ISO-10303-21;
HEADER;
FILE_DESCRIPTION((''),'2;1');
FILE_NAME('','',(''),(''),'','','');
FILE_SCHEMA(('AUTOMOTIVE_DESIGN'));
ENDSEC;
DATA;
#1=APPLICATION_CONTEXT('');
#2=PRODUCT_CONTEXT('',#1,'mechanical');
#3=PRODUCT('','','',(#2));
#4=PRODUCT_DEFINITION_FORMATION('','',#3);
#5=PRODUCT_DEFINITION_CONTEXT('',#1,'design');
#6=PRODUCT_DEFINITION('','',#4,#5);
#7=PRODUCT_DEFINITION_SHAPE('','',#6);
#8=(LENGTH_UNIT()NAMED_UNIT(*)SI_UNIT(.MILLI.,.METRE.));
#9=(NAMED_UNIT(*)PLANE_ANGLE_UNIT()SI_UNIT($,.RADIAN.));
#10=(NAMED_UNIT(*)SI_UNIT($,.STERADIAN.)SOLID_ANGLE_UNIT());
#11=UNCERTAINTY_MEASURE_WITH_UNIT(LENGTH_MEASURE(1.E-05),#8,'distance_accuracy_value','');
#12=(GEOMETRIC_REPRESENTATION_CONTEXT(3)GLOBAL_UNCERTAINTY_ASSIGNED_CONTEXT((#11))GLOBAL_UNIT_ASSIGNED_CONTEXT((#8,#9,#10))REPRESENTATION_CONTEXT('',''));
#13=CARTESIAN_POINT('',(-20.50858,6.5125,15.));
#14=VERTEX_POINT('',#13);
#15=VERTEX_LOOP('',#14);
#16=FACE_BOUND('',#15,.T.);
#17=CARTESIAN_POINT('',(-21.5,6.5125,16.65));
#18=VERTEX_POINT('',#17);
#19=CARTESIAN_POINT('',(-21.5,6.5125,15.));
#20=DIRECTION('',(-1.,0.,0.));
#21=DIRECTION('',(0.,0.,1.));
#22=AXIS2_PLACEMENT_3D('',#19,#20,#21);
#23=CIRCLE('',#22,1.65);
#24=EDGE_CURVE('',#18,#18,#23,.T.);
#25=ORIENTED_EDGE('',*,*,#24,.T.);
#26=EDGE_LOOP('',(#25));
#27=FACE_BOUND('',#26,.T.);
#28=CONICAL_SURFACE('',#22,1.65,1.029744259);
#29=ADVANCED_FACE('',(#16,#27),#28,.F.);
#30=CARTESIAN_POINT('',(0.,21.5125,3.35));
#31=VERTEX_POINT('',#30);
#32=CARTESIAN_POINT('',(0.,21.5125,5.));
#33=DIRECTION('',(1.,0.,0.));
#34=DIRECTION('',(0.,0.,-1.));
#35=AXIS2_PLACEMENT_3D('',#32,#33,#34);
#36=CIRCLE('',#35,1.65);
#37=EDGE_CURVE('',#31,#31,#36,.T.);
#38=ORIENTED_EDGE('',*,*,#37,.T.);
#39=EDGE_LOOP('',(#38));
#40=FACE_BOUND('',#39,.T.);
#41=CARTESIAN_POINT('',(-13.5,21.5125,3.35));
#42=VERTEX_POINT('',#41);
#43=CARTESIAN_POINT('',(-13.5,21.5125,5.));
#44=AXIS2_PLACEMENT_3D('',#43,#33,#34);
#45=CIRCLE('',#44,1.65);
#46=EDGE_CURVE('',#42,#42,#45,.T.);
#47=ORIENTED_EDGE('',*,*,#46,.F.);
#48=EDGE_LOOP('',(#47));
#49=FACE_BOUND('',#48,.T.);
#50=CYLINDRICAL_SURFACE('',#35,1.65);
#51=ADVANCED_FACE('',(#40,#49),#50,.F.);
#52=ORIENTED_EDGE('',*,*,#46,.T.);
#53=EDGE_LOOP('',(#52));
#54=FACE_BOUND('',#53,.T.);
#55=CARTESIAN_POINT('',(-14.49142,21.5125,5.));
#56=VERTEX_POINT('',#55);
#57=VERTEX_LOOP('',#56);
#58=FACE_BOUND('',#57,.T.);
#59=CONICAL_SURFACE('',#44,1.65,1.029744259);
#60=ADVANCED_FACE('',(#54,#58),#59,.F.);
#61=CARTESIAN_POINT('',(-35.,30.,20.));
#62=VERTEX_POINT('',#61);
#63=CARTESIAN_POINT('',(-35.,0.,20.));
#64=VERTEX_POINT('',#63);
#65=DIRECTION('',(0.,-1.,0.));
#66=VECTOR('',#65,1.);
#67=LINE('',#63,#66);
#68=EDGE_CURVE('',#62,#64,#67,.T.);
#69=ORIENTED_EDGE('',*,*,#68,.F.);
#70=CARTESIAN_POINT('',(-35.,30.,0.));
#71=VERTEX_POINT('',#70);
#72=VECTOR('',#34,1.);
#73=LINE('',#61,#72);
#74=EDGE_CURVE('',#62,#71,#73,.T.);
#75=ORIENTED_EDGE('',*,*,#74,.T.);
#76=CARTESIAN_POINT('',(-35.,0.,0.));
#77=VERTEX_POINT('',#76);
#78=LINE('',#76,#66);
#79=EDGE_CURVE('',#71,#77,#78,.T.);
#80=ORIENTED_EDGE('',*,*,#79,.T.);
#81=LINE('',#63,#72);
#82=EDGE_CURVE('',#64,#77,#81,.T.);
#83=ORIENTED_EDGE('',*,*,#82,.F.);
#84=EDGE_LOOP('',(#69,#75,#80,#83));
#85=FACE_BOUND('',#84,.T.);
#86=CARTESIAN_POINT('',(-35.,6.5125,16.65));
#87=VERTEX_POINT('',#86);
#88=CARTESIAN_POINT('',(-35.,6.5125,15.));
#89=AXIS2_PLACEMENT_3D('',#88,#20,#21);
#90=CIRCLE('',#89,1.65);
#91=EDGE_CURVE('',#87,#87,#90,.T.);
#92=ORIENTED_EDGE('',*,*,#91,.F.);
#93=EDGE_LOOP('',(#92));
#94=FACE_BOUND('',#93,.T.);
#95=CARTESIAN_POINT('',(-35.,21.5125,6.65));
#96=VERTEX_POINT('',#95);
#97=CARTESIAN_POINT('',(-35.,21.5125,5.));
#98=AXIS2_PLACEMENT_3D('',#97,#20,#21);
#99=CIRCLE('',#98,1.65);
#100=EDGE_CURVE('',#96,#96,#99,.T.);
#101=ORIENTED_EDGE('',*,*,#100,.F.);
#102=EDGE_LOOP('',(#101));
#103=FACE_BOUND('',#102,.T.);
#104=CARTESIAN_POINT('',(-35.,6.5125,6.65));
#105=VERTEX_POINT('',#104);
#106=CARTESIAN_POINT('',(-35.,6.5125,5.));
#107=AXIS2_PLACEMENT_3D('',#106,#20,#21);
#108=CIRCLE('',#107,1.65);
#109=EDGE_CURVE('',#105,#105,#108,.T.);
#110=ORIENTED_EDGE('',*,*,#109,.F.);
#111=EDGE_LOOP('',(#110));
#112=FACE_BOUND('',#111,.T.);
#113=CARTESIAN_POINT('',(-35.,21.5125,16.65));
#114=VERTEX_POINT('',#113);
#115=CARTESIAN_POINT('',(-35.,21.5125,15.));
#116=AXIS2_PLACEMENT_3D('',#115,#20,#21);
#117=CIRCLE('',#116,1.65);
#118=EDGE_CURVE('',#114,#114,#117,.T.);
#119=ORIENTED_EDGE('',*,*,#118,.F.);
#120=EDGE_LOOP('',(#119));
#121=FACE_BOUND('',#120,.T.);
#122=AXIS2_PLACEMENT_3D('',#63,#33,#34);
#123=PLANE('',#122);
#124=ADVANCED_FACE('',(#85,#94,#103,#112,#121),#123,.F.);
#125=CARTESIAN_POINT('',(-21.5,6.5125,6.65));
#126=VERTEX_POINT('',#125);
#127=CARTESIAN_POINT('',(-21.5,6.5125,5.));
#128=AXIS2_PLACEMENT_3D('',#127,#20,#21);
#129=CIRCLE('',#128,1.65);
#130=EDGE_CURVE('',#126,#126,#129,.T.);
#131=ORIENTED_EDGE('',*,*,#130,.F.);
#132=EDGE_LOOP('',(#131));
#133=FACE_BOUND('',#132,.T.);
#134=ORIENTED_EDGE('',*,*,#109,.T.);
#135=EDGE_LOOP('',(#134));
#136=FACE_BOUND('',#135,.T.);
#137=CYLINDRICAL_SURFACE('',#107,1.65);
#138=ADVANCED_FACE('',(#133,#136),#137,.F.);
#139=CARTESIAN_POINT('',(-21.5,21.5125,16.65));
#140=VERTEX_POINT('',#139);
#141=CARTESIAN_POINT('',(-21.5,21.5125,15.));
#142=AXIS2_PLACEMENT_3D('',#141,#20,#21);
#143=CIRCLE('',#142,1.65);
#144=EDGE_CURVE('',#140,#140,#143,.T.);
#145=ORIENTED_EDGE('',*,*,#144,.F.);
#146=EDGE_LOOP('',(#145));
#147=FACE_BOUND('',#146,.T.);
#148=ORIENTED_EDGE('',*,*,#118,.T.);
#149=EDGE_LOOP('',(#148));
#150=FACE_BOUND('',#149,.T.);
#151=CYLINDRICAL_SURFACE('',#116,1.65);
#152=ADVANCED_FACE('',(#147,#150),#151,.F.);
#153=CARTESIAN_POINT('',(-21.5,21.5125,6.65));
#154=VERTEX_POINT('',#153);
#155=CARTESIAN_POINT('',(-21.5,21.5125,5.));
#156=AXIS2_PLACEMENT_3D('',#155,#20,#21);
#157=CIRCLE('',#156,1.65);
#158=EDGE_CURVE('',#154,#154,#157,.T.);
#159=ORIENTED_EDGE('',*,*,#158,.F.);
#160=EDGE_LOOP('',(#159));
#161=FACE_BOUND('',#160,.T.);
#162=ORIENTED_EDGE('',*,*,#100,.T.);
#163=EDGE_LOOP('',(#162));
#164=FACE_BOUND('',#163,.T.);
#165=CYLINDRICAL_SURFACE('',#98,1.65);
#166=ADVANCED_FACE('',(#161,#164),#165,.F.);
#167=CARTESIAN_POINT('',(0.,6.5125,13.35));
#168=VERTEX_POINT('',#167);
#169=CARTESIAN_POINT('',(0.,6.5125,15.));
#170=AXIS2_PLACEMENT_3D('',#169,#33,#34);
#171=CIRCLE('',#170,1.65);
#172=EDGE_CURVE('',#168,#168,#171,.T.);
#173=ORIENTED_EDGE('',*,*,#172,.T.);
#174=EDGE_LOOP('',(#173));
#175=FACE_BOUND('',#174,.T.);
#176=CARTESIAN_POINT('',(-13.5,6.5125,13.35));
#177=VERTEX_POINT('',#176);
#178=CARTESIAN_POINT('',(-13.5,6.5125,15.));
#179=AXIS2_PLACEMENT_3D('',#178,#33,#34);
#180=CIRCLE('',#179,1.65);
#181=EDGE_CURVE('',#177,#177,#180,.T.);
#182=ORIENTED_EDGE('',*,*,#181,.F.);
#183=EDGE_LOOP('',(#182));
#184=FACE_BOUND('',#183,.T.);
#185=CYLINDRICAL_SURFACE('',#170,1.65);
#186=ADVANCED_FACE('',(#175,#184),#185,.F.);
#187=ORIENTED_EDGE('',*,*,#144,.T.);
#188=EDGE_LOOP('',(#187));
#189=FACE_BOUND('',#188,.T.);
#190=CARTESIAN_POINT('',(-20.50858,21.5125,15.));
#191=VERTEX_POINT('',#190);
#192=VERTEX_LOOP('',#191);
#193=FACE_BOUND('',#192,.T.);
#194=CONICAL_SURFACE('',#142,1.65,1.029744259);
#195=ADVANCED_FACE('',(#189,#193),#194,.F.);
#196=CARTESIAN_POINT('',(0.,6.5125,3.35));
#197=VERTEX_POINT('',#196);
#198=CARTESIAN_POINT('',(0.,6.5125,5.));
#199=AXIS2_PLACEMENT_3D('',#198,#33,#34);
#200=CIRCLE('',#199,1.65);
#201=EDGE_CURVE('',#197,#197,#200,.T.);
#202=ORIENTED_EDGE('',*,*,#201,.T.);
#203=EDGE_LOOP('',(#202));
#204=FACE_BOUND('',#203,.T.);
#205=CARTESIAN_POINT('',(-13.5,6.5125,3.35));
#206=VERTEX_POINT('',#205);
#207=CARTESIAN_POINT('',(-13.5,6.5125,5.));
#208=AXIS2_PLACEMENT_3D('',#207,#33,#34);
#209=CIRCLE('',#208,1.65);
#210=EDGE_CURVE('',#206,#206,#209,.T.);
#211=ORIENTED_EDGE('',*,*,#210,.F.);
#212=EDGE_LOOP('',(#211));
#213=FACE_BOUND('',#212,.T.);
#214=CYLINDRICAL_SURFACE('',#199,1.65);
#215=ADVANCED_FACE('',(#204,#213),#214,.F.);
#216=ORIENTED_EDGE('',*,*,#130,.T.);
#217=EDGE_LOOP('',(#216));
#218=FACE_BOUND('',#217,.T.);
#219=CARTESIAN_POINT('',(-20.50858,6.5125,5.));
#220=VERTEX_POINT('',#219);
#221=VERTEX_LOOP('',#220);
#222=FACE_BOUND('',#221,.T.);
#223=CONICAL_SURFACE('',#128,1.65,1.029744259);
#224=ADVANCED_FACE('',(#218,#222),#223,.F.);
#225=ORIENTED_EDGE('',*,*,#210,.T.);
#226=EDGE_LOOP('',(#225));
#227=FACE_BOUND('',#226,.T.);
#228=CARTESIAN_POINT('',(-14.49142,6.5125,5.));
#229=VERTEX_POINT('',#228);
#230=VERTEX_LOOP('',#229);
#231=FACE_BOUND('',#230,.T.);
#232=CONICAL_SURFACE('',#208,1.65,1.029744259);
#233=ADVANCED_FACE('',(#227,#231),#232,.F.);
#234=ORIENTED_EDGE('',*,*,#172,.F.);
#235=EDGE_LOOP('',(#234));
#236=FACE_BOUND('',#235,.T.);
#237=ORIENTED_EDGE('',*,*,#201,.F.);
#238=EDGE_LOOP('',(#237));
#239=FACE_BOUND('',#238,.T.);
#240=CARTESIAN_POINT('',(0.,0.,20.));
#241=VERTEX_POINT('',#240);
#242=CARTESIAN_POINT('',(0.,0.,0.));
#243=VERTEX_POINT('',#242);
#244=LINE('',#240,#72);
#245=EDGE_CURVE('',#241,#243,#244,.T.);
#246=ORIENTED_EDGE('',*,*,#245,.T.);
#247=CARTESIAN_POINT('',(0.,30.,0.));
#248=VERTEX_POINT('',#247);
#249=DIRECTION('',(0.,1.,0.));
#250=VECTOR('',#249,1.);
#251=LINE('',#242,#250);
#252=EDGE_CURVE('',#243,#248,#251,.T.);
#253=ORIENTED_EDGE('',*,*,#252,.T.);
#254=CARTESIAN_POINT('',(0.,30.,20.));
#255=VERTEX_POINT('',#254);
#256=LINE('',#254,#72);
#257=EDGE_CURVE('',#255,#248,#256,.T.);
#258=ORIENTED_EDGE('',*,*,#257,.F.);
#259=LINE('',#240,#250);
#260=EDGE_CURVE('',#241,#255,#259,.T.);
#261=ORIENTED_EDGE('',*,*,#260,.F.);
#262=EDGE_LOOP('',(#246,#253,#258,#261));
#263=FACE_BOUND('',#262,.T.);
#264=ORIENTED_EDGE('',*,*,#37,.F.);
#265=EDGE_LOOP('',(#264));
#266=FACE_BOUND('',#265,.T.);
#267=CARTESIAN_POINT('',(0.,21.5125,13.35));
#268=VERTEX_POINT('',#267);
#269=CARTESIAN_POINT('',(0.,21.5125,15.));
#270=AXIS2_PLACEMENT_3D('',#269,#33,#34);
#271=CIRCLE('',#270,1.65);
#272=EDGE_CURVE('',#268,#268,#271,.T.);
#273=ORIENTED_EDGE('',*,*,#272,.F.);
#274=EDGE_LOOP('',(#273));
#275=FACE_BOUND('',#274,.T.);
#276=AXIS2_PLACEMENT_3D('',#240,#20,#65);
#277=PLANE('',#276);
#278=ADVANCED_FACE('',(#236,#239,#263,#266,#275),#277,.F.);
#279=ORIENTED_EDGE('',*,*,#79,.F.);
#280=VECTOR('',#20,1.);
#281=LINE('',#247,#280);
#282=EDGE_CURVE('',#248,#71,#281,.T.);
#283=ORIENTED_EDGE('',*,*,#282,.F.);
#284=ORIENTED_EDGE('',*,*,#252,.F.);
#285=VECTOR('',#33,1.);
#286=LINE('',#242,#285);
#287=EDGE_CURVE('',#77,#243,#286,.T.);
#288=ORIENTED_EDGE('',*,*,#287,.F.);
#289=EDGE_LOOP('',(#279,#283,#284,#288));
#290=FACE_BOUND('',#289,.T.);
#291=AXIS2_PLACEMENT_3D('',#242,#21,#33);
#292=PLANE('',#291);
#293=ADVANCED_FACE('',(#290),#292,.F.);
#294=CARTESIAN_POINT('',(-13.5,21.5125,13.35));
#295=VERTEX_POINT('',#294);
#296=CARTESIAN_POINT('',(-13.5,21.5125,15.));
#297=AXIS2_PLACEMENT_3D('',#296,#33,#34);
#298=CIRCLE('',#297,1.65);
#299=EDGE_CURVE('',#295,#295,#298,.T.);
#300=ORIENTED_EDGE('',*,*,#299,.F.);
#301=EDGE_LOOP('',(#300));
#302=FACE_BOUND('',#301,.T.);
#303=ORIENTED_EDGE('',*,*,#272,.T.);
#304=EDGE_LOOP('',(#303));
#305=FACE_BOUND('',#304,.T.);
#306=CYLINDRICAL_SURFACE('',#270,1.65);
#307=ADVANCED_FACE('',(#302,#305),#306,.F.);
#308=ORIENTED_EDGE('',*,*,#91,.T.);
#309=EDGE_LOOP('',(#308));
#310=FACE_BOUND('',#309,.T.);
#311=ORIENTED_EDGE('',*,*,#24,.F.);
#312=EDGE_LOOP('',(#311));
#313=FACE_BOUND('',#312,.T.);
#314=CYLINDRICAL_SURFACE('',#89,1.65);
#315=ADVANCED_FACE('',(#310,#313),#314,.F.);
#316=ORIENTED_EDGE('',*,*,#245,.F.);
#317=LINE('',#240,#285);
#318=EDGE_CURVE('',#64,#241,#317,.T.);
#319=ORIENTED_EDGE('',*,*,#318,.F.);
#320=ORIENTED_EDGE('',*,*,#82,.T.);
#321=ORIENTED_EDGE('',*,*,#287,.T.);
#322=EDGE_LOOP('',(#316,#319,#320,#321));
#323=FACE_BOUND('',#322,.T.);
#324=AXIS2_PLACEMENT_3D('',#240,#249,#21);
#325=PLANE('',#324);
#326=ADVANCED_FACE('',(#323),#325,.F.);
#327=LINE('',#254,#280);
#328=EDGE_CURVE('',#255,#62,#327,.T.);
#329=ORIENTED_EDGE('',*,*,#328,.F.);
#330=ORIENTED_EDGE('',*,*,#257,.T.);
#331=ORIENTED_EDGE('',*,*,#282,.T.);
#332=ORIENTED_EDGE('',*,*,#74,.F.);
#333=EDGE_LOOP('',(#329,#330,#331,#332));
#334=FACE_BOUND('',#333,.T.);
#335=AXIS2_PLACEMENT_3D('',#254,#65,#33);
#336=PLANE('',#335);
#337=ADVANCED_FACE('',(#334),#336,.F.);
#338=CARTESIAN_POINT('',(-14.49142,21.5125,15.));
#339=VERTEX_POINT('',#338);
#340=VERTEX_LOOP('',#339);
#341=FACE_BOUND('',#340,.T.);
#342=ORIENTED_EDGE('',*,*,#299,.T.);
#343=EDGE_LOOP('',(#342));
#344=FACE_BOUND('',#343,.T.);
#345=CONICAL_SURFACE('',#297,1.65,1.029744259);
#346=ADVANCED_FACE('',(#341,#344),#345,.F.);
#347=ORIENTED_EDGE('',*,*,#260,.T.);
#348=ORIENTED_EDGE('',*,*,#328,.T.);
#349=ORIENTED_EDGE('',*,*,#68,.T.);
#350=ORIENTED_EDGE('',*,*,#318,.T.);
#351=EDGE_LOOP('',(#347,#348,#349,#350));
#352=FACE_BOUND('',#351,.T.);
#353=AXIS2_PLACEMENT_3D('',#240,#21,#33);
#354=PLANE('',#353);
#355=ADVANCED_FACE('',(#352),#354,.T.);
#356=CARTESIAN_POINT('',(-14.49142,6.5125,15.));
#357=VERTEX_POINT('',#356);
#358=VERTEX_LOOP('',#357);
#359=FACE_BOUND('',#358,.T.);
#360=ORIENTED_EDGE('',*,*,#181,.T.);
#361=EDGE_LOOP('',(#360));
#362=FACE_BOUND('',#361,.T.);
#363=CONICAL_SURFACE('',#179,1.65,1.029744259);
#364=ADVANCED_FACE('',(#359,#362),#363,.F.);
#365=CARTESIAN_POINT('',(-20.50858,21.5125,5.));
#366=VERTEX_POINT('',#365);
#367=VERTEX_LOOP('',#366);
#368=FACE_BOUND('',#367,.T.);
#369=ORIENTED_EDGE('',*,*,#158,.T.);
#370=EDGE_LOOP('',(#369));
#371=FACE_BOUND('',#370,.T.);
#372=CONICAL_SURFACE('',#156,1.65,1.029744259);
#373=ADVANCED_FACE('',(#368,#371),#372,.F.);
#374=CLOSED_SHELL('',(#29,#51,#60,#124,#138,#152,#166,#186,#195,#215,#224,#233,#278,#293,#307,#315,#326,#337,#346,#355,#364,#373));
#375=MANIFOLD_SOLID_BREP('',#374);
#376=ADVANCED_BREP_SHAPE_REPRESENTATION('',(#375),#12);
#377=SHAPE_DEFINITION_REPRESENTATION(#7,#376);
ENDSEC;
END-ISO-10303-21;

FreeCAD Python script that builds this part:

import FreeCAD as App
import Part
import Sketcher
from FreeCAD import Vector
Q = App.Units.Quantity


def add_polygon(sketch, points):
    """Adds a closed chain of lines whose ends are joined by coincident constraints."""
    first, n = sketch.GeometryCount, len(points)
    for a, b in zip(points, points[1:] + points[:1]):
        sketch.addGeometry(Part.LineSegment(App.Vector(*a, 0), App.Vector(*b, 0)), False)
    for i in range(n):
        sketch.addConstraint(Sketcher.Constraint("Coincident", first + i, 2, first + (i + 1) % n, 1))

doc = App.newDocument("Part")
body = doc.addObject("PartDesign::Body", "Body")

# Sketch on XY plane
sketch1 = body.newObject("Sketcher::SketchObject", "Sketch")
sketch1.AttachmentSupport = (doc.getObject("XY_Plane"), [""])
sketch1.MapMode = "FlatFace"
add_polygon(sketch1, [(-35, 30), (-35, 0), (0, 0), (0, 30)])  # lines 0-3
sketch1.addConstraint(Sketcher.Constraint("Vertical", 0))
sketch1.addConstraint(Sketcher.Constraint("Horizontal", 1))
sketch1.addConstraint(Sketcher.Constraint("Vertical", 2))
sketch1.addConstraint(Sketcher.Constraint("Horizontal", 3))
sketch1.addConstraint(Sketcher.Constraint("Coincident", 1, 2, -1, 1))
sketch1.addConstraint(Sketcher.Constraint("DistanceX", 1, 1, 1, 2, 35.0))
sketch1.addConstraint(Sketcher.Constraint("DistanceY", 0, 2, 0, 1, 30.0))
pad1 = body.newObject("PartDesign::Pad", "Pad")
pad1.Profile = sketch1
pad1.Length = 20

# Sketch on XZ plane
sketch2 = body.newObject("Sketcher::SketchObject", "Sketch001")
sketch2.AttachmentSupport = (doc.getObject("XZ_Plane"), [""])
sketch2.MapMode = "FlatFace"
sketch2.AttachmentOffset = App.Placement(Vector(0, 0, -21.5125), App.Rotation())
add_polygon(sketch2, [(-20.5, 5), (-35, 5), (-35, 6.7), (-21.5, 6.7)])  # lines 0-3
sketch2.addGeometry(Part.LineSegment(Vector(-35, 5, 0), Vector(-20.5, 5, 0)), True)  # axis
sketch2.addConstraint(Sketcher.Constraint("Horizontal", 0))
sketch2.addConstraint(Sketcher.Constraint("Vertical", 1))
sketch2.addConstraint(Sketcher.Constraint("Horizontal", 2))
sketch2.addConstraint(Sketcher.Constraint("Horizontal", 4))
sketch2.addConstraint(Sketcher.Constraint("Coincident", 4, 1, 0, 2))
sketch2.addConstraint(Sketcher.Constraint("Equal", 0, 4))
sketch2.addConstraint(Sketcher.Constraint("Angle", 3, Q("-59 deg")))
sketch2.addConstraint(Sketcher.Constraint("DistanceX", 2, 1, 2, 2, 13.5))
sketch2.addConstraint(Sketcher.Constraint("DistanceX", 0, 2, -1, 1, 35.0))
sketch2.addConstraint(Sketcher.Constraint("DistanceY", -1, 1, 0, 2, 5.0))
sketch2.addConstraint(Sketcher.Constraint("DistanceY", 1, 1, 1, 2, 1.65))
groove = body.newObject("PartDesign::Groove", "Groove")
groove.Profile = sketch2
groove.ReferenceAxis = (sketch2, ["Axis0"])
groove.Angle = 360
doc.recompute()

datumline = body.newObject("PartDesign::Line", "DatumLine")
datumline.Placement = App.Placement(Vector(0, 0, 0), App.Rotation(Vector(0, 0, 1), Vector(0, -0.832050294, 0.554700196)))
linearpattern = body.newObject("PartDesign::LinearPattern", "LinearPattern")
linearpattern.Originals = [groove]
linearpattern.Direction = (datumline, [""])
linearpattern.Mode = "offset"
linearpattern.Offset = 18.027756
linearpattern.Occurrences = 2
body.Tip = linearpattern
doc.recompute()

linearpattern2 = body.newObject("PartDesign::LinearPattern", "LinearPattern001")
linearpattern2.Originals = [groove]
linearpattern2.Direction = (doc.getObject("Y_Axis"), [""])
linearpattern2.Mode = "offset"
linearpattern2.Offset = 15
linearpattern2.Occurrences = 2
linearpattern2.Reversed = True
body.Tip = linearpattern2
doc.recompute()

linearpattern3 = body.newObject("PartDesign::LinearPattern", "LinearPattern002")
linearpattern3.Originals = [groove]
linearpattern3.Direction = (doc.getObject("Z_Axis"), [""])
linearpattern3.Mode = "offset"
linearpattern3.Offset = 10
linearpattern3.Occurrences = 2
body.Tip = linearpattern3
doc.recompute()

datumplane = body.newObject("PartDesign::Plane", "DatumPlane")
datumplane.AttachmentSupport = (doc.getObject("YZ_Plane"), [""])
datumplane.MapMode = "FlatFace"
datumplane.AttachmentOffset = App.Placement(Vector(0, 0, -17.5), App.Rotation())
mirrored = body.newObject("PartDesign::Mirrored", "Mirrored")
mirrored.Originals = [groove]
mirrored.MirrorPlane = (datumplane, [""])
body.Tip = mirrored

# Sketch on XZ plane
sketch3 = body.newObject("Sketcher::SketchObject", "Sketch002")
sketch3.AttachmentSupport = (doc.getObject("XZ_Plane"), [""])
sketch3.MapMode = "FlatFace"
sketch3.AttachmentOffset = App.Placement(Vector(0, 0, -6.5125), App.Rotation())
add_polygon(sketch3, [(0, 15), (-14.5, 15), (-13.5, 16.6), (0, 16.6)])  # lines 0-3
sketch3.addGeometry(Part.LineSegment(Vector(-14.5, 15, 0), Vector(0, 15, 0)), True)  # axis
sketch3.addConstraint(Sketcher.Constraint("Horizontal", 0))
sketch3.addConstraint(Sketcher.Constraint("Horizontal", 2))
sketch3.addConstraint(Sketcher.Constraint("Vertical", 3))
sketch3.addConstraint(Sketcher.Constraint("Horizontal", 4))
sketch3.addConstraint(Sketcher.Constraint("Coincident", 4, 1, 0, 2))
sketch3.addConstraint(Sketcher.Constraint("PointOnObject", 2, 2, -2))
sketch3.addConstraint(Sketcher.Constraint("PointOnObject", 4, 2, -2))
sketch3.addConstraint(Sketcher.Constraint("Angle", 1, Q("59 deg")))
sketch3.addConstraint(Sketcher.Constraint("DistanceX", 2, 1, 2, 2, 13.5))
sketch3.addConstraint(Sketcher.Constraint("DistanceY", -1, 1, 0, 2, 15.0))
sketch3.addConstraint(Sketcher.Constraint("DistanceY", 3, 2, 3, 1, 1.65))
groove2 = body.newObject("PartDesign::Groove", "Groove001")
groove2.Profile = sketch3
groove2.ReferenceAxis = (sketch3, ["Axis0"])
groove2.Angle = 360

# Sketch on XZ plane
sketch4 = body.newObject("Sketcher::SketchObject", "Sketch003")
sketch4.AttachmentSupport = (doc.getObject("XZ_Plane"), [""])
sketch4.MapMode = "FlatFace"
sketch4.AttachmentOffset = App.Placement(Vector(0, 0, -6.5125), App.Rotation())
add_polygon(sketch4, [(0, 5), (-14.5, 5), (-13.5, 6.7), (0, 6.7)])  # lines 0-3
sketch4.addGeometry(Part.LineSegment(Vector(-14.5, 5, 0), Vector(0, 5, 0)), True)  # axis
sketch4.addConstraint(Sketcher.Constraint("Horizontal", 0))
sketch4.addConstraint(Sketcher.Constraint("Horizontal", 2))
sketch4.addConstraint(Sketcher.Constraint("Vertical", 3))
sketch4.addConstraint(Sketcher.Constraint("Horizontal", 4))
sketch4.addConstraint(Sketcher.Constraint("Coincident", 4, 1, 0, 2))
sketch4.addConstraint(Sketcher.Constraint("PointOnObject", 2, 2, -2))
sketch4.addConstraint(Sketcher.Constraint("PointOnObject", 4, 2, -2))
sketch4.addConstraint(Sketcher.Constraint("Angle", 1, Q("59 deg")))
sketch4.addConstraint(Sketcher.Constraint("DistanceX", 2, 1, 2, 2, 13.5))
sketch4.addConstraint(Sketcher.Constraint("DistanceY", -1, 1, 0, 2, 5.0))
sketch4.addConstraint(Sketcher.Constraint("DistanceY", 3, 2, 3, 1, 1.65))
groove3 = body.newObject("PartDesign::Groove", "Groove002")
groove3.Profile = sketch4
groove3.ReferenceAxis = (sketch4, ["Axis0"])
groove3.Angle = 360

# Sketch on XZ plane
sketch5 = body.newObject("Sketcher::SketchObject", "Sketch004")
sketch5.AttachmentSupport = (doc.getObject("XZ_Plane"), [""])
sketch5.MapMode = "FlatFace"
sketch5.AttachmentOffset = App.Placement(Vector(0, 0, -21.5125), App.Rotation())
add_polygon(sketch5, [(0, 15), (-14.5, 15), (-13.5, 16.6), (0, 16.6)])  # lines 0-3
sketch5.addGeometry(Part.LineSegment(Vector(-14.5, 15, 0), Vector(0, 15, 0)), True)  # axis
sketch5.addConstraint(Sketcher.Constraint("Horizontal", 0))
sketch5.addConstraint(Sketcher.Constraint("Horizontal", 2))
sketch5.addConstraint(Sketcher.Constraint("Vertical", 3))
sketch5.addConstraint(Sketcher.Constraint("Horizontal", 4))
sketch5.addConstraint(Sketcher.Constraint("Coincident", 4, 1, 0, 2))
sketch5.addConstraint(Sketcher.Constraint("PointOnObject", 2, 2, -2))
sketch5.addConstraint(Sketcher.Constraint("PointOnObject", 4, 2, -2))
sketch5.addConstraint(Sketcher.Constraint("Angle", 1, Q("59 deg")))
sketch5.addConstraint(Sketcher.Constraint("DistanceX", 2, 1, 2, 2, 13.5))
sketch5.addConstraint(Sketcher.Constraint("DistanceY", -1, 1, 0, 2, 15.0))
sketch5.addConstraint(Sketcher.Constraint("DistanceY", 3, 2, 3, 1, 1.65))
groove4 = body.newObject("PartDesign::Groove", "Groove003")
groove4.Profile = sketch5
groove4.ReferenceAxis = (sketch5, ["Axis0"])
groove4.Angle = 360

doc.recompute()
